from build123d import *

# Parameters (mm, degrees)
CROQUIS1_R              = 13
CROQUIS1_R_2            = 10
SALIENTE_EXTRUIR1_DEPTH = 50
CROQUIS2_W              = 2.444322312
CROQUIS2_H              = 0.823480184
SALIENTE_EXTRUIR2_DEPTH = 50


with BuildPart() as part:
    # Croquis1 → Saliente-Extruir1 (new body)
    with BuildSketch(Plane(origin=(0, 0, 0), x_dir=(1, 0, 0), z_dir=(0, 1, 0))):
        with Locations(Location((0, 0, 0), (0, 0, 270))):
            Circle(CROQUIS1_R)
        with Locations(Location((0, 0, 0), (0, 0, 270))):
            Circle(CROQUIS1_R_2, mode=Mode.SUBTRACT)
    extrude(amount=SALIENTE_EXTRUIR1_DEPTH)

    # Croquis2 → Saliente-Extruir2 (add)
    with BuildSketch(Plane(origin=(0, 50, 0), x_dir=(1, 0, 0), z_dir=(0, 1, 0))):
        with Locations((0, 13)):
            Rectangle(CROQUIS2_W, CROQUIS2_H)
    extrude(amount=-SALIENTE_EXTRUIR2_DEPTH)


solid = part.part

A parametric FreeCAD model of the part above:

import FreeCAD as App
import Part
import Sketcher
from FreeCAD import Vector


def add_polygon(sketch, points):
    """Adds a closed chain of lines whose ends are joined by coincident constraints."""
    first, n = sketch.GeometryCount, len(points)
    for a, b in zip(points, points[1:] + points[:1]):
        sketch.addGeometry(Part.LineSegment(App.Vector(*a, 0), App.Vector(*b, 0)), False)
    for i in range(n):
        sketch.addConstraint(Sketcher.Constraint("Coincident", first + i, 2, first + (i + 1) % n, 1))

doc = App.newDocument("Part")
body = doc.addObject("PartDesign::Body", "Body")

# Sketch on XZ plane
sketch1 = body.newObject("Sketcher::SketchObject", "Sketch")
sketch1.AttachmentSupport = (doc.getObject("XZ_Plane"), [""])
sketch1.MapMode = "FlatFace"
sketch1.addGeometry(Part.Circle(Vector(0, 0, 0), Vector(0, 0, 1), 13), False)
sketch1.addGeometry(Part.Circle(Vector(0, 0, 0), Vector(0, 0, 1), 10), False)
sketch1.addConstraint(Sketcher.Constraint("Coincident", 0, 3, -1, 1))
sketch1.addConstraint(Sketcher.Constraint("Coincident", 1, 3, -1, 1))
sketch1.addConstraint(Sketcher.Constraint("Diameter", 0, 26.0))
sketch1.addConstraint(Sketcher.Constraint("Diameter", 1, 20.0))
pad1 = body.newObject("PartDesign::Pad", "Pad")
pad1.Profile = sketch1
pad1.Length = 50
pad1.Reversed = True

# Sketch on XZ plane
sketch2 = body.newObject("Sketcher::SketchObject", "Sketch001")
sketch2.AttachmentSupport = (doc.getObject("XZ_Plane"), [""])
sketch2.MapMode = "FlatFace"
sketch2.AttachmentOffset = App.Placement(Vector(0, 0, -50), App.Rotation())
add_polygon(sketch2, [(-1.2, -13.4), (-1.2, -12.6), (1.2, -12.6), (1.2, -13.4)])  # lines 0-3
sketch2.addConstraint(Sketcher.Constraint("Vertical", 0))
sketch2.addConstraint(Sketcher.Constraint("Horizontal", 1))
sketch2.addConstraint(Sketcher.Constraint("Vertical", 2))
sketch2.addConstraint(Sketcher.Constraint("Horizontal", 3))
sketch2.addConstraint(Sketcher.Constraint("DistanceY", 0, 1, 0, 2, 0.82348))
sketch2.addConstraint(Sketcher.Constraint("DistanceX", 1, 1, 1, 2, 2.444322))
sketch2.addConstraint(Sketcher.Constraint("DistanceX", 0, 2, -1, 1, 1.222161))
sketch2.addConstraint(Sketcher.Constraint("DistanceY", 0, 2, -1, 1, 12.58826))
pad2 = body.newObject("PartDesign::Pad", "Pad001")
pad2.Profile = sketch2
pad2.Length = 50

doc.recompute()
